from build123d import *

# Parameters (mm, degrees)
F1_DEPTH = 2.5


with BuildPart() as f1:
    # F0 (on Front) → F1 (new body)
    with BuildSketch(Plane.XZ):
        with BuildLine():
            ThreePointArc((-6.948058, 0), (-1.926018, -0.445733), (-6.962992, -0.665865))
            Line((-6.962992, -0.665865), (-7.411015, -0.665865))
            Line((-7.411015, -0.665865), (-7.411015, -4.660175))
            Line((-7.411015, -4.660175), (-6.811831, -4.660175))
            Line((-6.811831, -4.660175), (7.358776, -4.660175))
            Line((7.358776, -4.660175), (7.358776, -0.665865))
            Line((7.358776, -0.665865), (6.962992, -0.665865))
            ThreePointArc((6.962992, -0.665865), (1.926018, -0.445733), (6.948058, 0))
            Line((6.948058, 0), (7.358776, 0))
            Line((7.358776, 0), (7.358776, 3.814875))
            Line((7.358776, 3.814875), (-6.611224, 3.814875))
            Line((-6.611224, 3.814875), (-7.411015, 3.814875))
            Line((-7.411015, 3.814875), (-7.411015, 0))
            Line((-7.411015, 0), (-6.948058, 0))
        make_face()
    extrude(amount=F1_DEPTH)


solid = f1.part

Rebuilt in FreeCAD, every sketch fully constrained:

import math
import FreeCAD as App
import Part
import Sketcher

doc = App.newDocument("Part")
body = doc.addObject("PartDesign::Body", "Body")

# Sketch on XZ plane
sketch1 = body.newObject("Sketcher::SketchObject", "Sketch")
sketch1.AttachmentSupport = (doc.getObject("XZ_Plane"), [""])
sketch1.MapMode = "FlatFace"
sketch1.addGeometry(Part.ArcOfCircle(Part.Circle(App.Vector(-4.45, -0.39, 0), App.Vector(0, 0, 1), 2.53), math.radians(-174), math.radians(171)), False)
sketch1.addGeometry(Part.LineSegment(App.Vector(-6.96, -0.67, 0), App.Vector(-7.41, -0.67, 0)), False)
sketch1.addGeometry(Part.LineSegment(App.Vector(-7.41, -0.67, 0), App.Vector(-7.41, -4.66, 0)), False)
sketch1.addGeometry(Part.LineSegment(App.Vector(-7.41, -4.66, 0), App.Vector(7.36, -4.66, 0)), False)
sketch1.addGeometry(Part.LineSegment(App.Vector(7.36, -4.66, 0), App.Vector(7.36, -0.67, 0)), False)
sketch1.addGeometry(Part.LineSegment(App.Vector(7.36, -0.67, 0), App.Vector(6.96, -0.67, 0)), False)
sketch1.addGeometry(Part.ArcOfCircle(Part.Circle(App.Vector(4.45, -0.39, 0), App.Vector(0, 0, 1), 2.53), math.radians(9), math.radians(354)), False)
sketch1.addGeometry(Part.LineSegment(App.Vector(6.95, 0, 0), App.Vector(7.36, 0, 0)), False)
sketch1.addGeometry(Part.LineSegment(App.Vector(7.36, 0, 0), App.Vector(7.36, 3.81, 0)), False)
sketch1.addGeometry(Part.LineSegment(App.Vector(7.36, 3.81, 0), App.Vector(-7.41, 3.81, 0)), False)
sketch1.addGeometry(Part.LineSegment(App.Vector(-7.41, 3.81, 0), App.Vector(-7.41, 0, 0)), False)
sketch1.addGeometry(Part.LineSegment(App.Vector(-7.41, 0, 0), App.Vector(-6.95, 0, 0)), False)
sketch1.addConstraint(Sketcher.Constraint("Coincident", 0, 1, 1, 1))
sketch1.addConstraint(Sketcher.Constraint("Coincident", 1, 2, 2, 1))
sketch1.addConstraint(Sketcher.Constraint("Coincident", 2, 2, 3, 1))
sketch1.addConstraint(Sketcher.Constraint("Coincident", 3, 2, 4, 1))
sketch1.addConstraint(Sketcher.Constraint("Coincident", 4, 2, 5, 1))
sketch1.addConstraint(Sketcher.Constraint("Coincident", 5, 2, 6, 2))
sketch1.addConstraint(Sketcher.Constraint("Coincident", 6, 1, 7, 1))
sketch1.addConstraint(Sketcher.Constraint("Coincident", 7, 2, 8, 1))
sketch1.addConstraint(Sketcher.Constraint("Coincident", 8, 2, 9, 1))
sketch1.addConstraint(Sketcher.Constraint("Coincident", 9, 2, 10, 1))
sketch1.addConstraint(Sketcher.Constraint("Coincident", 10, 2, 11, 1))
sketch1.addConstraint(Sketcher.Constraint("Coincident", 11, 2, 0, 2))
sketch1.addConstraint(Sketcher.Constraint("Horizontal", 1))
sketch1.addConstraint(Sketcher.Constraint("Vertical", 2))
sketch1.addConstraint(Sketcher.Constraint("Horizontal", 3))
sketch1.addConstraint(Sketcher.Constraint("Vertical", 4))
sketch1.addConstraint(Sketcher.Constraint("Horizontal", 5))
sketch1.addConstraint(Sketcher.Constraint("Horizontal", 7))
sketch1.addConstraint(Sketcher.Constraint("Vertical", 8))
sketch1.addConstraint(Sketcher.Constraint("Horizontal", 9))
sketch1.addConstraint(Sketcher.Constraint("Vertical", 10))
sketch1.addConstraint(Sketcher.Constraint("Horizontal", 11))
sketch1.addConstraint(Sketcher.Constraint("Equal", 0, 6))
sketch1.addConstraint(Sketcher.Constraint("Symmetric", 6, 1, 11, 2, -1, 1))
sketch1.addConstraint(Sketcher.Constraint("Symmetric", 0, 3, 6, 3, -2))
sketch1.addConstraint(Sketcher.Constraint("Horizontal", 1, 2, 4, 2))
sketch1.addConstraint(Sketcher.Constraint("Vertical", 4, 2, 7, 2))
sketch1.addConstraint(Sketcher.Constraint("Vertical", 2, 2, 9, 2))
sketch1.addConstraint(Sketcher.Constraint("Radius", 0, 2.526408))
sketch1.addConstraint(Sketcher.Constraint("DistanceX", 3, 1, 3, 2, 14.769791))
sketch1.addConstraint(Sketcher.Constraint("DistanceX", 7, 1, 7, 2, 0.410718))
sketch1.addConstraint(Sketcher.Constraint("DistanceY", 2, 2, 2, 1, 3.99431))
sketch1.addConstraint(Sketcher.Constraint("DistanceX", 0, 1, 0, 3, 2.511201))
sketch1.addConstraint(Sketcher.Constraint("DistanceX", 1, 2, 1, 1, 0.448023))
sketch1.addConstraint(Sketcher.Constraint("DistanceX", 5, 2, 5, 1, 0.395784))
sketch1.addConstraint(Sketcher.Constraint("DistanceY", 8, 1, 8, 2, 3.814875))
pad1 = body.newObject("PartDesign::Pad", "Pad")
pad1.Profile = sketch1
pad1.Length = 2.5

doc.recompute()
